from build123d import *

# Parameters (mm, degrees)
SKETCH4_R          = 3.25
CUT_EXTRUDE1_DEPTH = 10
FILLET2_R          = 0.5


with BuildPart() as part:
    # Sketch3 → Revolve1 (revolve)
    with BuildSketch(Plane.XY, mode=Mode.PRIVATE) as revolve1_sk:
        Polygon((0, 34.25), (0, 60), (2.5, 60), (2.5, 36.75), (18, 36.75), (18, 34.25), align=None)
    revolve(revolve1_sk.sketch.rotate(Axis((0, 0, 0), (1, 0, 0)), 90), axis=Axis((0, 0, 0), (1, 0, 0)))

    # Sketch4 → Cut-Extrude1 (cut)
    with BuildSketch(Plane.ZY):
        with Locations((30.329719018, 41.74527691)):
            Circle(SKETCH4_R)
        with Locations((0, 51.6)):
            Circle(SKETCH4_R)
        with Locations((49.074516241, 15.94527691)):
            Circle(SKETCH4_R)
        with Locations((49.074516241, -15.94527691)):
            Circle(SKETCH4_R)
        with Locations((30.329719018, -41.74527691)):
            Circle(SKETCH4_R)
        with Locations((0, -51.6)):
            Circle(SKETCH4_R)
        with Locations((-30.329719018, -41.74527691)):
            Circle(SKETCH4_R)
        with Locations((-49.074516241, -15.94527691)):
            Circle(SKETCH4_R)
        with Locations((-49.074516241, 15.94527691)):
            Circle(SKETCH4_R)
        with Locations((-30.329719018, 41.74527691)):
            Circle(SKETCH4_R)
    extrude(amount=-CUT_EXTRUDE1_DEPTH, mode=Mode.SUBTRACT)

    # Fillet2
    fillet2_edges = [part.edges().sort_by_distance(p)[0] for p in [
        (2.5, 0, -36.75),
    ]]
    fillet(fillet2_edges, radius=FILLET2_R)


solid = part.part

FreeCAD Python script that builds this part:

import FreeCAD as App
import Part
import Sketcher

V = App.Vector
Q = App.Units.Quantity


def edges_at(feature, points):
    """Names of the edges that pass closest to the given points."""
    edges = feature.Shape.Edges
    near = lambda p: min(range(len(edges)), key=lambda i: edges[i].distToShape(Part.Vertex(*p))[0])
    return sorted({f"Edge{near(p) + 1}" for p in points})


def add_polygon(sketch, points):
    """Adds a closed chain of lines whose ends are joined by coincident constraints."""
    first, n = sketch.GeometryCount, len(points)
    for a, b in zip(points, points[1:] + points[:1]):
        sketch.addGeometry(Part.LineSegment(App.Vector(*a, 0), App.Vector(*b, 0)), False)
    for i in range(n):
        sketch.addConstraint(Sketcher.Constraint("Coincident", first + i, 2, first + (i + 1) % n, 1))

doc = App.newDocument("Part")
body = doc.addObject("PartDesign::Body", "Body")

sketch1 = body.newObject("Sketcher::SketchObject", "Sketch")
sketch1.AttachmentSupport = (doc.getObject("XY_Plane"), [""])
sketch1.MapMode = "FlatFace"
add_polygon(sketch1, [(0, 60), (0, 34.2), (18, 34.2), (18, 36.8), (2.5, 36.8), (2.5, 60)])
sketch1.addConstraint([
    Sketcher.Constraint("Vertical", 0),
    Sketcher.Constraint("Horizontal", 1),
    Sketcher.Constraint("Vertical", 2),
    Sketcher.Constraint("Horizontal", 3),
    Sketcher.Constraint("Vertical", 4),
    Sketcher.Constraint("Horizontal", 5),
    Sketcher.Constraint("PointOnObject", 0, 2, -2),
    Sketcher.Constraint("Equal", 5, 2),
    Sketcher.Constraint("DistanceX", 1, 1, 1, 2, Q("18 mm")),
    Sketcher.Constraint("DistanceX", 3, 2, 3, 1, Q("15.5 mm")),
    Sketcher.Constraint("DistanceY", -1, 1, 4, 2, Q("60 mm")),
    Sketcher.Constraint("DistanceY", 0, 2, 0, 1, Q("25.75 mm")),
])
revolution = body.newObject("PartDesign::Revolution", "Revolution")
revolution.Profile = sketch1
revolution.ReferenceAxis = (sketch1, ["H_Axis"])
revolution.Angle = 360

sketch2 = body.newObject("Sketcher::SketchObject", "Sketch001")
sketch2.AttachmentSupport = (doc.getObject("YZ_Plane"), [""])
sketch2.MapMode = "FlatFace"
sketch2.addGeometry([
    Part.Circle(V(41.7, 30.3, 0), V(0, 0, 1), 3.2),
    Part.Circle(V(51.6, 0, 0), V(0, 0, 1), 3.2),
    Part.Circle(V(15.9, 49.1, 0), V(0, 0, 1), 3.2),
    Part.Circle(V(-15.9, 49.1, 0), V(0, 0, 1), 3.2),
    Part.Circle(V(-41.7, 30.3, 0), V(0, 0, 1), 3.2),
    Part.Circle(V(-51.6, 0, 0), V(0, 0, 1), 3.2),
    Part.Circle(V(-41.7, -30.3, 0), V(0, 0, 1), 3.2),
    Part.Circle(V(-15.9, -49.1, 0), V(0, 0, 1), 3.2),
    Part.Circle(V(15.9, -49.1, 0), V(0, 0, 1), 3.2),
    Part.Circle(V(41.7, -30.3, 0), V(0, 0, 1), 3.2),
], False)
sketch2.addConstraint([
    Sketcher.Constraint("Equal", 0, 1),
    Sketcher.Constraint("Equal", 1, 2),
    Sketcher.Constraint("Equal", 2, 3),
    Sketcher.Constraint("Equal", 3, 4),
    Sketcher.Constraint("Equal", 4, 5),
    Sketcher.Constraint("Equal", 5, 6),
    Sketcher.Constraint("Equal", 6, 7),
    Sketcher.Constraint("Equal", 7, 8),
    Sketcher.Constraint("Equal", 8, 9),
    Sketcher.Constraint("Symmetric", 1, 3, 5, 3, -1, 1),
    Sketcher.Constraint("Symmetric", 0, 3, 6, 3, -1, 1),
    Sketcher.Constraint("Symmetric", 2, 3, 7, 3, -1, 1),
    Sketcher.Constraint("Symmetric", 3, 3, 8, 3, -1, 1),
    Sketcher.Constraint("Symmetric", 4, 3, 9, 3, -1, 1),
    Sketcher.Constraint("Symmetric", 2, 3, 3, 3, -2),
    Sketcher.Constraint("Symmetric", 0, 3, 4, 3, -2),
    Sketcher.Constraint("PointOnObject", 1, 3, -1),
    Sketcher.Constraint("Diameter", 0, Q("6.5 mm")),
    Sketcher.Constraint("DistanceX", -1, 1, 1, 3, Q("51.6 mm")),
    Sketcher.Constraint("DistanceX", 2, 3, 0, 3, Q("25.8 mm")),
    Sketcher.Constraint("DistanceY", -1, 1, 0, 3, Q("30.329719 mm")),
    Sketcher.Constraint("DistanceX", -1, 1, 0, 3, Q("41.745277 mm")),
    Sketcher.Constraint("DistanceY", -1, 1, 2, 3, Q("49.074516 mm")),
])
pocket1 = body.newObject("PartDesign::Pocket", "Pocket")
pocket1.Profile = sketch2
pocket1.Length = 10
pocket1.Reversed = True
doc.recompute()

fillet = body.newObject("PartDesign::Fillet", "Fillet")
fillet.Base = (pocket1, edges_at(pocket1, [(2.5, 0, -36.75)]))
fillet.Radius = 0.5

doc.recompute()
